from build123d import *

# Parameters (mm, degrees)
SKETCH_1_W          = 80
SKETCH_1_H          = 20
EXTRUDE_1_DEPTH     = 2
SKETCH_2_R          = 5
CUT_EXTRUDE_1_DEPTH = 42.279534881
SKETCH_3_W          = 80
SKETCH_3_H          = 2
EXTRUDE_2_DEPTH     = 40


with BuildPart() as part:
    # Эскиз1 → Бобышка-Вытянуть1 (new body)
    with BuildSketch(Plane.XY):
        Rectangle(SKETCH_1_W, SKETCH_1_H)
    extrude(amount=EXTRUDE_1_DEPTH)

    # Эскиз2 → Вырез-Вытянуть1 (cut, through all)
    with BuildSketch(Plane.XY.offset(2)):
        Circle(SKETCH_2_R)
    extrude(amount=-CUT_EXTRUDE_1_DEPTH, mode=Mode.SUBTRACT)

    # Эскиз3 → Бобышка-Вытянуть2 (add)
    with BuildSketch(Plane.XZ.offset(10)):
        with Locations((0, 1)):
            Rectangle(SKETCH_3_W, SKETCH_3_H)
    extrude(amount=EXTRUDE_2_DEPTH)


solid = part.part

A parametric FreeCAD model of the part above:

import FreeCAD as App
import Part
import Sketcher
from FreeCAD import Vector
Q = App.Units.Quantity


def add_polygon(sketch, points):
    """Adds a closed chain of lines whose ends are joined by coincident constraints."""
    first, n = sketch.GeometryCount, len(points)
    for a, b in zip(points, points[1:] + points[:1]):
        sketch.addGeometry(Part.LineSegment(App.Vector(*a, 0), App.Vector(*b, 0)), False)
    for i in range(n):
        sketch.addConstraint(Sketcher.Constraint("Coincident", first + i, 2, first + (i + 1) % n, 1))

doc = App.newDocument("Part")
body = doc.addObject("PartDesign::Body", "Body")

sketch1 = body.newObject("Sketcher::SketchObject", "Sketch")
sketch1.AttachmentSupport = (doc.getObject("XY_Plane"), [""])
sketch1.MapMode = "FlatFace"
add_polygon(sketch1, [(-40, 10), (-40, -10), (40, -10), (40, 10)])
sketch1.addConstraint([
    Sketcher.Constraint("Vertical", 0),
    Sketcher.Constraint("Horizontal", 1),
    Sketcher.Constraint("Vertical", 2),
    Sketcher.Constraint("Horizontal", 3),
    Sketcher.Constraint("Symmetric", 0, 2, 2, 2, -1, 1),
    Sketcher.Constraint("DistanceX", 1, 1, 1, 2, Q("80 mm")),
    Sketcher.Constraint("DistanceY", 0, 2, 0, 1, Q("20 mm")),
])
pad1 = body.newObject("PartDesign::Pad", "Pad")
pad1.Profile = sketch1
pad1.Length = 2

sketch2 = body.newObject("Sketcher::SketchObject", "Sketch001")
sketch2.AttachmentSupport = (doc.getObject("XY_Plane"), [""])
sketch2.MapMode = "FlatFace"
sketch2.AttachmentOffset = App.Placement(Vector(0, 0, 2), App.Rotation())
sketch2.addGeometry(Part.Circle(Vector(0, 0, 0), Vector(0, 0, 1), 5), False)
sketch2.addConstraint([
    Sketcher.Constraint("Coincident", 0, 3, -1, 1),
    Sketcher.Constraint("Diameter", 0, Q("10 mm")),
])
pocket1 = body.newObject("PartDesign::Pocket", "Pocket")
pocket1.Profile = sketch2
pocket1.Type = "ThroughAll"

sketch3 = body.newObject("Sketcher::SketchObject", "Sketch002")
sketch3.AttachmentSupport = (doc.getObject("XZ_Plane"), [""])
sketch3.MapMode = "FlatFace"
sketch3.AttachmentOffset = App.Placement(Vector(0, 0, 10), App.Rotation())
add_polygon(sketch3, [(-40, 2), (-40, 0), (40, 0), (40, 2)])
sketch3.addConstraint([
    Sketcher.Constraint("Vertical", 0),
    Sketcher.Constraint("Horizontal", 1),
    Sketcher.Constraint("Vertical", 2),
    Sketcher.Constraint("Horizontal", 3),
    Sketcher.Constraint("Symmetric", 0, 2, 1, 2, -1, 1),
    Sketcher.Constraint("DistanceX", 1, 1, 1, 2, Q("80 mm")),
    Sketcher.Constraint("DistanceY", 0, 2, 0, 1, Q("2 mm")),
])
pad2 = body.newObject("PartDesign::Pad", "Pad001")
pad2.Profile = sketch3
pad2.Length = 40

doc.recompute()
